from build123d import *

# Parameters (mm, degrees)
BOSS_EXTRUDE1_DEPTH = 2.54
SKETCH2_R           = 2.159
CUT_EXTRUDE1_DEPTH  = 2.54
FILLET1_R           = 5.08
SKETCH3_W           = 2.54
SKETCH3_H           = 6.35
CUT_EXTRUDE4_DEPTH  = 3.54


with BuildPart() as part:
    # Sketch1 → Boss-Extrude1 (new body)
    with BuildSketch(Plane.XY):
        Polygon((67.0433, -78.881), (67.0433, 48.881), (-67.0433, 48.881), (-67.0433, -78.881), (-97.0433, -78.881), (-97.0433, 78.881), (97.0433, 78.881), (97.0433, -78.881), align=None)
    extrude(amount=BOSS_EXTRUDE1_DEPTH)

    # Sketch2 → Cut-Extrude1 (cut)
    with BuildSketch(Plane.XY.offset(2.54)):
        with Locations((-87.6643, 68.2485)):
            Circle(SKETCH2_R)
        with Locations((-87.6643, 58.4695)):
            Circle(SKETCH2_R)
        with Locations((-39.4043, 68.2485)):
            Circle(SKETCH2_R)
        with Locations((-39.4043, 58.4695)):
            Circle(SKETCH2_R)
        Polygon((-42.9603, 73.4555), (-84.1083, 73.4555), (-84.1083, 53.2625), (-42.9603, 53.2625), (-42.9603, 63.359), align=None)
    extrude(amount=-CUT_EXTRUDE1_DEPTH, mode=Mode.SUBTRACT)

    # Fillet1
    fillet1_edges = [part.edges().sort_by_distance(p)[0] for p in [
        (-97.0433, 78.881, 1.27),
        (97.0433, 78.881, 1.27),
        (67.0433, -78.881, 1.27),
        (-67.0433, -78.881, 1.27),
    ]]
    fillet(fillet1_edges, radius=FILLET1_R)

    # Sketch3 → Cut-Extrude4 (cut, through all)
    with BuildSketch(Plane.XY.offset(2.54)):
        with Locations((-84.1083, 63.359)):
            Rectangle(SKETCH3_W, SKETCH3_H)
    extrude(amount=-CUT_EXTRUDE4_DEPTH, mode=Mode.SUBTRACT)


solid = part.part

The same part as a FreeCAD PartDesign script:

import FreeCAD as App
import Part
import Sketcher
Q = App.Units.Quantity


def edges_at(feature, points):
    """Names of the edges that pass closest to the given points."""
    edges = feature.Shape.Edges
    near = lambda p: min(range(len(edges)), key=lambda i: edges[i].distToShape(Part.Vertex(*p))[0])
    return sorted({f"Edge{near(p) + 1}" for p in points})

doc = App.newDocument("Part")
body = doc.addObject("PartDesign::Body", "Body")

sketch1 = body.newObject("Sketcher::SketchObject", "Sketch")
sketch1.AttachmentSupport = (doc.getObject("XY_Plane"), [""])
sketch1.MapMode = "FlatFace"
sketch1.addGeometry([
    Part.LineSegment(App.Vector(67, 49, 0), App.Vector(67, -79, 0)),
    Part.LineSegment(App.Vector(67, -79, 0), App.Vector(97, -79, 0)),
    Part.LineSegment(App.Vector(97, -79, 0), App.Vector(97, 79, 0)),
    Part.LineSegment(App.Vector(97, 79, 0), App.Vector(-97, 79, 0)),
    Part.LineSegment(App.Vector(-97, 79, 0), App.Vector(-97, -79, 0)),
    Part.LineSegment(App.Vector(-97, -79, 0), App.Vector(-67, -79, 0)),
    Part.LineSegment(App.Vector(-67, -79, 0), App.Vector(-67, 49, 0)),
    Part.LineSegment(App.Vector(-67, 49, 0), App.Vector(67, 49, 0)),
], False)
sketch1.addConstraint([
    Sketcher.Constraint("Coincident", 0, 2, 1, 1),
    Sketcher.Constraint("Coincident", 1, 2, 2, 1),
    Sketcher.Constraint("Coincident", 2, 2, 3, 1),
    Sketcher.Constraint("Coincident", 3, 2, 4, 1),
    Sketcher.Constraint("Coincident", 4, 2, 5, 1),
    Sketcher.Constraint("Coincident", 5, 2, 6, 1),
    Sketcher.Constraint("Coincident", 6, 2, 7, 1),
    Sketcher.Constraint("Coincident", 7, 2, 0, 1),
    Sketcher.Constraint("Vertical", 0),
    Sketcher.Constraint("Horizontal", 1),
    Sketcher.Constraint("Vertical", 2),
    Sketcher.Constraint("Horizontal", 3),
    Sketcher.Constraint("Vertical", 4),
    Sketcher.Constraint("Horizontal", 5),
    Sketcher.Constraint("Vertical", 6),
    Sketcher.Constraint("Horizontal", 7),
    Sketcher.Constraint("Symmetric", 1, 2, 3, 2, -1, 1),
    Sketcher.Constraint("Symmetric", 0, 2, 5, 2, -2),
    Sketcher.Constraint("DistanceY", 0, 2, 0, 1, Q("5.03 in")),
    Sketcher.Constraint("DistanceX", 7, 1, 7, 2, Q("5.279 in")),
    Sketcher.Constraint("DistanceX", 1, 1, 1, 2, Q("30 mm")),
    Sketcher.Constraint("DistanceY", 2, 1, 2, 2, Q("157.762 mm")),
])
pad1 = body.newObject("PartDesign::Pad", "Pad")
pad1.Profile = sketch1
pad1.Length = Q("0.1 in")

sketch2 = body.newObject("Sketcher::SketchObject", "Sketch001")
sketch2.AttachmentSupport = (doc.getObject("XY_Plane"), [""])
sketch2.MapMode = "FlatFace"
sketch2.AttachmentOffset = App.Placement(App.Vector(0, 0, 0.1 * 25.4), App.Rotation())
sketch2.addGeometry([
    Part.Circle(App.Vector(-87.7, 68.2, 0), App.Vector(0, 0, 1), 2.2),
    Part.Circle(App.Vector(-87.7, 58.5, 0), App.Vector(0, 0, 1), 2.2),
    Part.Circle(App.Vector(-39.4, 68.2, 0), App.Vector(0, 0, 1), 2.2),
    Part.Circle(App.Vector(-39.4, 58.5, 0), App.Vector(0, 0, 1), 2.2),
    Part.LineSegment(App.Vector(-43, 73.5, 0), App.Vector(-84.1, 73.5, 0)),
    Part.LineSegment(App.Vector(-84.1, 73.5, 0), App.Vector(-84.1, 53.3, 0)),
    Part.LineSegment(App.Vector(-84.1, 53.3, 0), App.Vector(-43, 53.3, 0)),
    Part.LineSegment(App.Vector(-43, 53.3, 0), App.Vector(-43, 73.5, 0)),
], False)
sketch2.addConstraint([
    Sketcher.Constraint("Coincident", 4, 2, 5, 1),
    Sketcher.Constraint("Coincident", 5, 2, 6, 1),
    Sketcher.Constraint("Coincident", 6, 2, 7, 1),
    Sketcher.Constraint("Coincident", 7, 2, 4, 1),
    Sketcher.Constraint("Horizontal", 4),
    Sketcher.Constraint("Vertical", 5),
    Sketcher.Constraint("Horizontal", 6),
    Sketcher.Constraint("Vertical", 7),
    Sketcher.Constraint("Equal", 0, 1),
    Sketcher.Constraint("Equal", 1, 2),
    Sketcher.Constraint("Equal", 2, 3),
    Sketcher.Constraint("Horizontal", 0, 3, 2, 3),
    Sketcher.Constraint("Horizontal", 1, 3, 3, 3),
    Sketcher.Constraint("Vertical", 0, 3, 1, 3),
    Sketcher.Constraint("Vertical", 2, 3, 3, 3),
    Sketcher.Constraint("Diameter", 0, Q("0.17 in")),
    Sketcher.Constraint("DistanceX", 4, 2, 4, 1, Q("1.62 in")),
    Sketcher.Constraint("DistanceX", 0, 3, 2, 3, Q("1.9 in")),
    Sketcher.Constraint("DistanceY", 5, 2, 5, 1, Q("0.795 in")),
    Sketcher.Constraint("DistanceX", 0, 3, 4, 2, Q("0.14 in")),
    Sketcher.Constraint("DistanceY", 1, 3, 4, 2, Q("0.59 in")),
    Sketcher.Constraint("DistanceY", 5, 2, 0, 3, Q("0.59 in")),
    Sketcher.Constraint("DistanceX", 0, 3, -1, 1, Q("87.6643 mm")),
    Sketcher.Constraint("DistanceY", -1, 1, 0, 3, Q("68.2485 mm")),
])
pocket1 = body.newObject("PartDesign::Pocket", "Pocket")
pocket1.Profile = sketch2
pocket1.Length = Q("0.1 in")
doc.recompute()

fillet = body.newObject("PartDesign::Fillet", "Fillet")
fillet.Base = (pocket1, edges_at(pocket1, [
    (-97.043, 78.881, 1.27),
    (97.043, 78.881, 1.27),
    (67.043, -78.881, 1.27),
    (-67.043, -78.881, 1.27),
]))
fillet.Radius = Q("0.2 in")

sketch3 = body.newObject("Sketcher::SketchObject", "Sketch002")
sketch3.AttachmentSupport = (doc.getObject("XY_Plane"), [""])
sketch3.MapMode = "FlatFace"
sketch3.AttachmentOffset = App.Placement(App.Vector(0, 0, 0.1 * 25.4), App.Rotation())
sketch3.addGeometry([
    Part.LineSegment(App.Vector(-85.4, 66.5, 0), App.Vector(-85.4, 60.2, 0)),
    Part.LineSegment(App.Vector(-85.4, 60.2, 0), App.Vector(-82.8, 60.2, 0)),
    Part.LineSegment(App.Vector(-82.8, 60.2, 0), App.Vector(-82.8, 66.5, 0)),
    Part.LineSegment(App.Vector(-82.8, 66.5, 0), App.Vector(-85.4, 66.5, 0)),
], False)
sketch3.addConstraint([
    Sketcher.Constraint("Coincident", 0, 2, 1, 1),
    Sketcher.Constraint("Coincident", 1, 2, 2, 1),
    Sketcher.Constraint("Coincident", 2, 2, 3, 1),
    Sketcher.Constraint("Coincident", 3, 2, 0, 1),
    Sketcher.Constraint("Vertical", 0),
    Sketcher.Constraint("Horizontal", 1),
    Sketcher.Constraint("Vertical", 2),
    Sketcher.Constraint("Horizontal", 3),
    Sketcher.Constraint("DistanceX", 1, 1, 1, 2, Q("0.1 in")),
    Sketcher.Constraint("DistanceY", 0, 2, 0, 1, Q("0.25 in")),
    Sketcher.Constraint("DistanceX", 0, 2, -1, 1, Q("85.3783 mm")),
    Sketcher.Constraint("DistanceY", -1, 1, 0, 2, Q("60.184 mm")),
])
pocket2 = body.newObject("PartDesign::Pocket", "Pocket001")
pocket2.Profile = sketch3
pocket2.Type = "ThroughAll"

doc.recompute()
